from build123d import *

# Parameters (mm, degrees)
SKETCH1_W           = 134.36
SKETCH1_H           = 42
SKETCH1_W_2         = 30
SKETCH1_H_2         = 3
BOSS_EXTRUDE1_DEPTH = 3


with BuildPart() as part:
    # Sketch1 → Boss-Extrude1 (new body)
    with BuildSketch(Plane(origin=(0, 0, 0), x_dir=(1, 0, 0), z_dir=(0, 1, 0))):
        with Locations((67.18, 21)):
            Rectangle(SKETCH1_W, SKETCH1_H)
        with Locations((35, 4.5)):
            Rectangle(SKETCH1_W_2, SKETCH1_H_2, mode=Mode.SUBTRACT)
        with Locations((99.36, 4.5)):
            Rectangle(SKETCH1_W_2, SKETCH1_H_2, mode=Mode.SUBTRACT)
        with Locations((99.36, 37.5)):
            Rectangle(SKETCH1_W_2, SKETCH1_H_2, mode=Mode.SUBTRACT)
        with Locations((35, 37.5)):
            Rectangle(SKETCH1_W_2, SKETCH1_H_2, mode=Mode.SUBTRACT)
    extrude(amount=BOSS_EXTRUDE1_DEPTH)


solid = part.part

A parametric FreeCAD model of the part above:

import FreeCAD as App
import Part
import Sketcher
from FreeCAD import Vector
Q = App.Units.Quantity


def add_polygon(sketch, points):
    """Adds a closed chain of lines whose ends are joined by coincident constraints."""
    first, n = sketch.GeometryCount, len(points)
    for a, b in zip(points, points[1:] + points[:1]):
        sketch.addGeometry(Part.LineSegment(App.Vector(*a, 0), App.Vector(*b, 0)), False)
    for i in range(n):
        sketch.addConstraint(Sketcher.Constraint("Coincident", first + i, 2, first + (i + 1) % n, 1))

doc = App.newDocument("Part")
body = doc.addObject("PartDesign::Body", "Body")

sketch1 = body.newObject("Sketcher::SketchObject", "Sketch")
sketch1.AttachmentSupport = (doc.getObject("XZ_Plane"), [""])
sketch1.MapMode = "FlatFace"
add_polygon(sketch1, [(0, -42), (0, 0), (134.4, 0), (134.4, -42)])
add_polygon(sketch1, [(50, -3), (20, -3), (20, -6), (50, -6)])
add_polygon(sketch1, [(114.4, -3), (84.4, -3), (84.4, -6), (114.4, -6)])
add_polygon(sketch1, [(50, -36), (20, -36), (20, -39), (50, -39)])
add_polygon(sketch1, [(114.4, -36), (84.4, -36), (84.4, -39), (114.4, -39)])
sketch1.addConstraint(Sketcher.Constraint("Vertical", 0))
sketch1.addConstraint(Sketcher.Constraint("Horizontal", 1))
sketch1.addConstraint(Sketcher.Constraint("Vertical", 2))
sketch1.addConstraint(Sketcher.Constraint("Horizontal", 3))
sketch1.addConstraint(Sketcher.Constraint("Horizontal", 4))
sketch1.addConstraint(Sketcher.Constraint("Vertical", 5))
sketch1.addConstraint(Sketcher.Constraint("Horizontal", 6))
sketch1.addConstraint(Sketcher.Constraint("Vertical", 7))
sketch1.addConstraint(Sketcher.Constraint("Horizontal", 8))
sketch1.addConstraint(Sketcher.Constraint("Vertical", 9))
sketch1.addConstraint(Sketcher.Constraint("Horizontal", 10))
sketch1.addConstraint(Sketcher.Constraint("Vertical", 11))
sketch1.addConstraint(Sketcher.Constraint("Horizontal", 12))
sketch1.addConstraint(Sketcher.Constraint("Vertical", 13))
sketch1.addConstraint(Sketcher.Constraint("Horizontal", 14))
sketch1.addConstraint(Sketcher.Constraint("Vertical", 15))
sketch1.addConstraint(Sketcher.Constraint("Horizontal", 16))
sketch1.addConstraint(Sketcher.Constraint("Vertical", 17))
sketch1.addConstraint(Sketcher.Constraint("Horizontal", 18))
sketch1.addConstraint(Sketcher.Constraint("Vertical", 19))
sketch1.addConstraint(Sketcher.Constraint("Coincident", 0, 2, -1, 1))
sketch1.addConstraint(Sketcher.Constraint("Horizontal", 7, 2, 8, 2))
sketch1.addConstraint(Sketcher.Constraint("Horizontal", 6, 2, 9, 2))
sketch1.addConstraint(Sketcher.Constraint("Horizontal", 15, 2, 16, 2))
sketch1.addConstraint(Sketcher.Constraint("Horizontal", 14, 2, 17, 2))
sketch1.addConstraint(Sketcher.Constraint("Vertical", 5, 2, 12, 2))
sketch1.addConstraint(Sketcher.Constraint("Vertical", 7, 2, 14, 2))
sketch1.addConstraint(Sketcher.Constraint("Vertical", 9, 2, 16, 2))
sketch1.addConstraint(Sketcher.Constraint("Vertical", 11, 2, 18, 2))
sketch1.addConstraint(Sketcher.Constraint("Equal", 6, 8))
sketch1.addConstraint(Sketcher.Constraint("Equal", 11, 13))
sketch1.addConstraint(Sketcher.Constraint("DistanceX", 4, 2, 4, 1, Q("30 mm")))
sketch1.addConstraint(Sketcher.Constraint("DistanceY", 0, 1, 0, 2, Q("42 mm")))
sketch1.addConstraint(Sketcher.Constraint("DistanceY", 5, 2, 5, 1, Q("3 mm")))
sketch1.addConstraint(Sketcher.Constraint("DistanceX", -1, 1, 4, 2, Q("20 mm")))
sketch1.addConstraint(Sketcher.Constraint("DistanceY", 4, 2, -1, 1, Q("3 mm")))
sketch1.addConstraint(Sketcher.Constraint("DistanceY", 12, 2, -1, 1, Q("36 mm")))
sketch1.addConstraint(Sketcher.Constraint("DistanceX", 8, 2, 1, 2, Q("50 mm")))
sketch1.addConstraint(Sketcher.Constraint("DistanceX", 1, 1, 1, 2, Q("134.36 mm")))
pad1 = body.newObject("PartDesign::Pad", "Pad")
pad1.Profile = sketch1
pad1.Length = 3
pad1.Reversed = True

doc.recompute()
